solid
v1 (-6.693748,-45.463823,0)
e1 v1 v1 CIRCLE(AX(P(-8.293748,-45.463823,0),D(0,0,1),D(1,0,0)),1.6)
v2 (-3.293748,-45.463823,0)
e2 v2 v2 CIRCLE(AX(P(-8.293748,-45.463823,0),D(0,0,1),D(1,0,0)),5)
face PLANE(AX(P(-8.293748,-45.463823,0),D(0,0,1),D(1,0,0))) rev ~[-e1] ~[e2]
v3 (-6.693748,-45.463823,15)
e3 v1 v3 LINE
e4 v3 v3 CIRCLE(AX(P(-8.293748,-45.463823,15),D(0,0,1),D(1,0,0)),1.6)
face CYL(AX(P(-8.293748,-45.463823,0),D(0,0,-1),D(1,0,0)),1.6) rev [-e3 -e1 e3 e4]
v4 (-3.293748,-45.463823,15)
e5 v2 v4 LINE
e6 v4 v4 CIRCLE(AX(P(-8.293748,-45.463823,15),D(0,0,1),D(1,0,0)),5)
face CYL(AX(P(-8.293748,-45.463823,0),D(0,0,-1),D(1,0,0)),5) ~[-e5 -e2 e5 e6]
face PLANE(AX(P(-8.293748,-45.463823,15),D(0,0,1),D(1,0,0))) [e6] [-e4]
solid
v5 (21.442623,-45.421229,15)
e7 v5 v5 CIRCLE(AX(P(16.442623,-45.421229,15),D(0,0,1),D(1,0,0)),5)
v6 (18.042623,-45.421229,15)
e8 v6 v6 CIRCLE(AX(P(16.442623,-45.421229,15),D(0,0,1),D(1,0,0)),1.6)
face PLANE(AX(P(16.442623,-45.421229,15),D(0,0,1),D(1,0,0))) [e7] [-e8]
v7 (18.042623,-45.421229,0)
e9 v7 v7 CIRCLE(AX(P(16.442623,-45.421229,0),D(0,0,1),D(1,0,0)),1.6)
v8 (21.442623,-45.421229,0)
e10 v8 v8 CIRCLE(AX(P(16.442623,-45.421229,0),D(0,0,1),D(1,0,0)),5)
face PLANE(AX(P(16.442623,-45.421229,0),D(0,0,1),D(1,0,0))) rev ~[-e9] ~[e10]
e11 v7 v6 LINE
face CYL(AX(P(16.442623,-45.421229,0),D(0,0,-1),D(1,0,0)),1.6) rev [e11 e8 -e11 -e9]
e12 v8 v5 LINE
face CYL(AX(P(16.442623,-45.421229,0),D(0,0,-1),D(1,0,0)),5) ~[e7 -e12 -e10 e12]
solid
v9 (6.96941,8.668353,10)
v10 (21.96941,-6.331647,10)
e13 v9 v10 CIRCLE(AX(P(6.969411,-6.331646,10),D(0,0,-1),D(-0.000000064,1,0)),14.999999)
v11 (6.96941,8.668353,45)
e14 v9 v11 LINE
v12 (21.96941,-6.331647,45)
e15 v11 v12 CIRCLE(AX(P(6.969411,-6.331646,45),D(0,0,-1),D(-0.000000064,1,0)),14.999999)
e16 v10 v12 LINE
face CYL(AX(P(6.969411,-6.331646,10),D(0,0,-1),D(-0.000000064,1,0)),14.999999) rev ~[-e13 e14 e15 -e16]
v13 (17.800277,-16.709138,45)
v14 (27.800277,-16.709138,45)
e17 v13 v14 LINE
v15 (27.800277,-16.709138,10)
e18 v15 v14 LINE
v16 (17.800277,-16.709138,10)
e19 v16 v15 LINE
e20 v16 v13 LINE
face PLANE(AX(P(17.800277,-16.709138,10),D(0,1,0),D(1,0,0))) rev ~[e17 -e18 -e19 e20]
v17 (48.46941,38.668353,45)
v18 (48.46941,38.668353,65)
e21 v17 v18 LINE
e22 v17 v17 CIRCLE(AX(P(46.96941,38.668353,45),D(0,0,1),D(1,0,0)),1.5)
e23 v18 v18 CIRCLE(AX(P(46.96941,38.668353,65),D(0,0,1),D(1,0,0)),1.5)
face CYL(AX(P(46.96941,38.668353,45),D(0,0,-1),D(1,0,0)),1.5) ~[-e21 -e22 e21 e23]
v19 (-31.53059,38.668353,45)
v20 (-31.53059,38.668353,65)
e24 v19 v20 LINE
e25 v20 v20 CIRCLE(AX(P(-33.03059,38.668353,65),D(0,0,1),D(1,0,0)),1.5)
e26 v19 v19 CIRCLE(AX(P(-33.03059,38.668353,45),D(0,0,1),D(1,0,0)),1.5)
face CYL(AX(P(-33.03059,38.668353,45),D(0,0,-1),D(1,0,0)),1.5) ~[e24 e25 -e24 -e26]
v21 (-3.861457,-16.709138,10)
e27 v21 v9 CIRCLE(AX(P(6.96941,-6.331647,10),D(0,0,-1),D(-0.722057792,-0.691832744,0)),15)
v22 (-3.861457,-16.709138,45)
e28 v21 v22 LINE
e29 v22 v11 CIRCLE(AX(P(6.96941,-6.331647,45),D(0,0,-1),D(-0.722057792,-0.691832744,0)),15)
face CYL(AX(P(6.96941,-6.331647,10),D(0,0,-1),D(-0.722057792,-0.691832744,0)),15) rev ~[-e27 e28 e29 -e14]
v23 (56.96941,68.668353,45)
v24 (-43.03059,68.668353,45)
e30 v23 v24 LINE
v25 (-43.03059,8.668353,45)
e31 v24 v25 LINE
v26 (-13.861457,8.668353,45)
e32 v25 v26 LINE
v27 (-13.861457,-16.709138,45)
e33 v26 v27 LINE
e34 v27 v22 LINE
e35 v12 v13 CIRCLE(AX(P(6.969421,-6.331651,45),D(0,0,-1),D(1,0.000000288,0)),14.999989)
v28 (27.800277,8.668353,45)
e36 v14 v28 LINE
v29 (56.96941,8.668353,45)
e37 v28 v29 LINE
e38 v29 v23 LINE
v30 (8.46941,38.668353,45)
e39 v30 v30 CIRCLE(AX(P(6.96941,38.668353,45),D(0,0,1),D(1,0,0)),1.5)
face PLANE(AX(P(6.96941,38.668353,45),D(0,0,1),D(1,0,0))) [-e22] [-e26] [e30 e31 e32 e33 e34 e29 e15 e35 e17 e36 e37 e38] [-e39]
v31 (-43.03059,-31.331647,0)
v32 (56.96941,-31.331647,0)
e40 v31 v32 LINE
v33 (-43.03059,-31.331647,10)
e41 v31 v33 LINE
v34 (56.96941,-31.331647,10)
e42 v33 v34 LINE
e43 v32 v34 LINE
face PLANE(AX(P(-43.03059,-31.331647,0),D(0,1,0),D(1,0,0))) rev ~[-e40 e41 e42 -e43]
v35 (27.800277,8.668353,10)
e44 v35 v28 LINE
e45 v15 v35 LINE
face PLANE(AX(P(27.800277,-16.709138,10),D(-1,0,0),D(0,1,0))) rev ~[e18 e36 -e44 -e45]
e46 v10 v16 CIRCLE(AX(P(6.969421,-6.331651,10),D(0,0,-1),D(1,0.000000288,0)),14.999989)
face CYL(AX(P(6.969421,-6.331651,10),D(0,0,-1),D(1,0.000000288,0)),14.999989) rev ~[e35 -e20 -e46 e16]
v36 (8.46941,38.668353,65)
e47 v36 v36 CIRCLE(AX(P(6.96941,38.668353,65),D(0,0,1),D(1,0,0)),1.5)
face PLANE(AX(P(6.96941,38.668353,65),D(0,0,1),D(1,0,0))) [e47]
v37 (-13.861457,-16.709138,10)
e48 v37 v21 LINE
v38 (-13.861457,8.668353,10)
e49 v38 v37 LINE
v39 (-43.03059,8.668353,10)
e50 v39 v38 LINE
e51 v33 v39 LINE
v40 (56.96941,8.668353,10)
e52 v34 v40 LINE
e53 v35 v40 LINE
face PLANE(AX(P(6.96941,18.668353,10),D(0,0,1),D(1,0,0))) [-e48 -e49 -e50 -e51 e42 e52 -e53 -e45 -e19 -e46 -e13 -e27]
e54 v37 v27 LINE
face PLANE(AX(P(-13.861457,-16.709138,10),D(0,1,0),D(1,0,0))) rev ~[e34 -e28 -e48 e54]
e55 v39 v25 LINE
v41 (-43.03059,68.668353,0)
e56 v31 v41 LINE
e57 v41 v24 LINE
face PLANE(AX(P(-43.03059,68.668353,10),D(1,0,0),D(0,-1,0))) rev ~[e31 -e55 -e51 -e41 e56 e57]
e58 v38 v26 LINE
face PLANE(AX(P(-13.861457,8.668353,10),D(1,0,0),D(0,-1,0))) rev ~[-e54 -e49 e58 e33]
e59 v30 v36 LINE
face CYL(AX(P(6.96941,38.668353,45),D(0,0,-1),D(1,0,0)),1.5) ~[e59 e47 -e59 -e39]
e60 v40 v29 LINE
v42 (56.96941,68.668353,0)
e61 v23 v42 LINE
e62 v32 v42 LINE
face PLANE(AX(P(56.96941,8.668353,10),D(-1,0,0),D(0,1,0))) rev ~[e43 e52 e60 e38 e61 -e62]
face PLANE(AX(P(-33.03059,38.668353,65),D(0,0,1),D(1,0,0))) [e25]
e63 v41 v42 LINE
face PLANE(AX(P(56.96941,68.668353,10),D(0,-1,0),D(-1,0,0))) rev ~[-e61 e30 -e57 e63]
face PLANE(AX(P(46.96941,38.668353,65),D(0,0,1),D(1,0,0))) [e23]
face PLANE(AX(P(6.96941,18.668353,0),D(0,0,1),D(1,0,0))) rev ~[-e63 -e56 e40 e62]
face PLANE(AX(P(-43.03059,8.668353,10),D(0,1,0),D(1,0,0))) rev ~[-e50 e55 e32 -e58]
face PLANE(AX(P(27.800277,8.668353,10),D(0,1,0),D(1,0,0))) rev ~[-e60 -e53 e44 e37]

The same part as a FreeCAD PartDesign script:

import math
import FreeCAD as App
import Part
import Sketcher
Q = App.Units.Quantity

doc = App.newDocument("Part")
params = doc.addObject("Spreadsheet::Sheet", "Params")
for row, (alias, value) in enumerate([
    ("sketch1_width", "100 mm"),
    ("pad1_length", "10 mm"),
    ("sketch2_radius", "15 mm"),
    ("sketch2_width", "100 mm"),
    ("sketch2_width2", "10 mm"),
    ("sketch2_height", "60 mm"),
    ("pad2_length", "35 mm"),
    ("sketch3_diameter", "3 mm"),
    ("pad3_length", "20 mm"),
    ("sketch4_diameter", "10 mm"),
    ("sketch4_diameter2", "3.2 mm"),
    ("pad4_length", "15 mm"),
], start=1):
    params.set(f"A{row}", alias)
    params.set(f"B{row}", "=" + value)
    params.setAlias(f"B{row}", alias)

body = doc.addObject("PartDesign::Body", "Body")

# Sketch on XY plane
sketch1 = body.newObject("Sketcher::SketchObject", "Sketch")
sketch1.AttachmentSupport = (doc.getObject("XY_Plane"), [""])
sketch1.MapMode = "FlatFace"
sketch1.addGeometry([
    Part.LineSegment(App.Vector(-43.03059, 68.668353, 0), App.Vector(-43.03059, -31.331647, 0)),
    Part.LineSegment(App.Vector(-43.03059, -31.331647, 0), App.Vector(56.96941, -31.331647, 0)),
    Part.LineSegment(App.Vector(56.96941, -31.331647, 0), App.Vector(56.96941, 68.668353, 0)),
    Part.LineSegment(App.Vector(56.96941, 68.668353, 0), App.Vector(-43.03059, 68.668353, 0)),
], False)
sketch1.addConstraint([
    Sketcher.Constraint("Coincident", 0, 2, 1, 1),
    Sketcher.Constraint("Coincident", 1, 2, 2, 1),
    Sketcher.Constraint("Coincident", 2, 2, 3, 1),
    Sketcher.Constraint("Coincident", 3, 2, 0, 1),
    Sketcher.Constraint("Vertical", 0),
    Sketcher.Constraint("Horizontal", 1),
    Sketcher.Constraint("Vertical", 2),
    Sketcher.Constraint("Horizontal", 3),
    Sketcher.Constraint("Equal", 3, 0),
    Sketcher.Constraint("DistanceX", 1, 1, 1, 2, Q("100 mm")),
    Sketcher.Constraint("DistanceX", 0, 2, -1, 1, Q("43.03059 mm")),
    Sketcher.Constraint("DistanceY", 0, 2, -1, 1, Q("31.331647 mm")),
])
sketch1.setExpression("Constraints[9]", "Params.sketch1_width")
pad1 = body.newObject("PartDesign::Pad", "Pad")
pad1.Profile = sketch1
pad1.setExpression("Length", "Params.pad1_length")

# Sketch on XY plane
sketch2 = body.newObject("Sketcher::SketchObject", "Sketch001")
sketch2.AttachmentSupport = (doc.getObject("XY_Plane"), [""])
sketch2.MapMode = "FlatFace"
sketch2.AttachmentOffset = App.Placement(App.Vector(0, 0, 10), App.Rotation())
sketch2.addGeometry([
    Part.LineSegment(App.Vector(56.96941, 68.668353, 0), App.Vector(-43.03059, 68.668353, 0)),  # 0
    Part.LineSegment(App.Vector(-43.03059, 68.668353, 0), App.Vector(-43.03059, 8.668353, 0)),  # 1
    Part.LineSegment(App.Vector(-43.03059, 8.668353, 0), App.Vector(-13.861457, 8.668353, 0)),  # 2
    Part.LineSegment(App.Vector(-13.861457, 8.668353, 0), App.Vector(-13.861457, -16.709138, 0)),  # 3
    Part.LineSegment(App.Vector(-13.861457, -16.709138, 0), App.Vector(-3.861457, -16.709138, 0)),  # 4
    Part.ArcOfCircle(Part.Circle(App.Vector(6.96941, -6.331647, 0), App.Vector(0, 0, 1), 15), math.radians(89.999999), math.radians(223.775362)),  # 5
    Part.ArcOfCircle(Part.Circle(App.Vector(6.969411, -6.331646, 0), App.Vector(0, 0, 1), 14.999999), math.radians(-0.000004), math.radians(90.000004)),  # 6
    Part.ArcOfCircle(Part.Circle(App.Vector(6.969421, -6.331651, 0), App.Vector(0, 0, 1), 14.999989), math.radians(-43.775378), math.radians(0.000016)),  # 7
    Part.LineSegment(App.Vector(17.800277, -16.709138, 0), App.Vector(27.800277, -16.709138, 0)),  # 8
    Part.LineSegment(App.Vector(27.800277, -16.709138, 0), App.Vector(27.800277, 8.668353, 0)),  # 9
    Part.LineSegment(App.Vector(27.800277, 8.668353, 0), App.Vector(56.96941, 8.668353, 0)),  # 10
    Part.LineSegment(App.Vector(56.96941, 8.668353, 0), App.Vector(56.96941, 68.668353, 0)),  # 11
], False)
sketch2.addConstraint([
    Sketcher.Constraint("Coincident", 0, 2, 1, 1),
    Sketcher.Constraint("Coincident", 1, 2, 2, 1),
    Sketcher.Constraint("Coincident", 2, 2, 3, 1),
    Sketcher.Constraint("Coincident", 3, 2, 4, 1),
    Sketcher.Constraint("Coincident", 4, 2, 5, 2),
    Sketcher.Constraint("Tangent", 5, 1, 6, 2),
    Sketcher.Constraint("Tangent", 6, 1, 7, 2),
    Sketcher.Constraint("Coincident", 7, 1, 8, 1),
    Sketcher.Constraint("Coincident", 8, 2, 9, 1),
    Sketcher.Constraint("Coincident", 9, 2, 10, 1),
    Sketcher.Constraint("Coincident", 10, 2, 11, 1),
    Sketcher.Constraint("Coincident", 11, 2, 0, 1),
    Sketcher.Constraint("Horizontal", 0),
    Sketcher.Constraint("Vertical", 1),
    Sketcher.Constraint("Horizontal", 2),
    Sketcher.Constraint("Vertical", 3),
    Sketcher.Constraint("Horizontal", 4),
    Sketcher.Constraint("Horizontal", 8),
    Sketcher.Constraint("Vertical", 9),
    Sketcher.Constraint("Horizontal", 10),
    Sketcher.Constraint("Vertical", 11),
    Sketcher.Constraint("Equal", 5, 6),
    Sketcher.Constraint("Horizontal", 2, 2, 5, 1),
    Sketcher.Constraint("Horizontal", 5, 3, 6, 1),
    Sketcher.Constraint("Horizontal", 4, 2, 7, 1),
    Sketcher.Constraint("Horizontal", 5, 1, 9, 2),
    Sketcher.Constraint("Vertical", 6, 3, 5, 1),
    Sketcher.Constraint("Equal", 4, 8),
    Sketcher.Constraint("Equal", 2, 10),
    Sketcher.Constraint("Radius", 5, Q("15 mm")),
    Sketcher.Constraint("DistanceX", 0, 2, 0, 1, Q("100 mm")),
    Sketcher.Constraint("DistanceX", 4, 1, 4, 2, Q("10 mm")),
    Sketcher.Constraint("DistanceY", 1, 2, 1, 1, Q("60 mm")),
    Sketcher.Constraint("DistanceX", 0, 2, 6, 3, Q("50.000001 mm")),
    Sketcher.Constraint("DistanceY", 3, 2, 3, 1, Q("25.377491 mm")),
    Sketcher.Constraint("DistanceX", -1, 1, 5, 3, Q("6.96941 mm")),
    Sketcher.Constraint("DistanceY", 7, 3, -1, 1, Q("6.331651 mm")),
])
sketch2.setExpression("Constraints[29]", "Params.sketch2_radius")
sketch2.setExpression("Constraints[30]", "Params.sketch2_width")
sketch2.setExpression("Constraints[31]", "Params.sketch2_width2")
sketch2.setExpression("Constraints[32]", "Params.sketch2_height")
pad2 = body.newObject("PartDesign::Pad", "Pad001")
pad2.Profile = sketch2
pad2.setExpression("Length", "Params.pad2_length")

# Sketch on XY plane
sketch3 = body.newObject("Sketcher::SketchObject", "Sketch002")
sketch3.AttachmentSupport = (doc.getObject("XY_Plane"), [""])
sketch3.MapMode = "FlatFace"
sketch3.AttachmentOffset = App.Placement(App.Vector(0, 0, 45), App.Rotation())
sketch3.addGeometry([
    Part.Circle(App.Vector(-33.03059, 38.668353, 0), App.Vector(0, 0, 1), 1.5),
    Part.Circle(App.Vector(6.96941, 38.668353, 0), App.Vector(0, 0, 1), 1.5),
    Part.Circle(App.Vector(46.96941, 38.668353, 0), App.Vector(0, 0, 1), 1.5),
], False)
sketch3.addConstraint([
    Sketcher.Constraint("Equal", 0, 1),
    Sketcher.Constraint("Equal", 1, 2),
    Sketcher.Constraint("Horizontal", 0, 3, 1, 3),
    Sketcher.Constraint("Horizontal", 1, 3, 2, 3),
    Sketcher.Constraint("Diameter", 0, Q("3 mm")),
    Sketcher.Constraint("DistanceX", 0, 3, 1, 3, Q("40 mm")),
    Sketcher.Constraint("DistanceX", 1, 3, 2, 3, Q("40 mm")),
    Sketcher.Constraint("DistanceX", 0, 3, -1, 1, Q("33.03059 mm")),
    Sketcher.Constraint("DistanceY", -1, 1, 0, 3, Q("38.668353 mm")),
])
sketch3.setExpression("Constraints[4]", "Params.sketch3_diameter")
pad3 = body.newObject("PartDesign::Pad", "Pad002")
pad3.Profile = sketch3
pad3.setExpression("Length", "Params.pad3_length")
body2 = doc.addObject("PartDesign::Body", "Body001")
body2.AllowCompound = True

# Sketch on XY plane
sketch4 = body2.newObject("Sketcher::SketchObject", "Sketch003")
sketch4.AttachmentSupport = (doc.getObject("XY_Plane001"), [""])
sketch4.MapMode = "FlatFace"
sketch4.addGeometry([
    Part.Circle(App.Vector(-8.293748, -45.463823, 0), App.Vector(0, 0, 1), 5),
    Part.Circle(App.Vector(-8.293748, -45.463823, 0), App.Vector(0, 0, 1), 1.6),
    Part.Circle(App.Vector(16.442623, -45.421229, 0), App.Vector(0, 0, 1), 5),
    Part.Circle(App.Vector(16.442623, -45.421229, 0), App.Vector(0, 0, 1), 1.6),
], False)
sketch4.addConstraint([
    Sketcher.Constraint("Coincident", 1, 3, 0, 3),
    Sketcher.Constraint("Coincident", 3, 3, 2, 3),
    Sketcher.Constraint("Equal", 0, 2),
    Sketcher.Constraint("Equal", 1, 3),
    Sketcher.Constraint("Diameter", 0, Q("10 mm")),
    Sketcher.Constraint("Diameter", 1, Q("3.2 mm")),
    Sketcher.Constraint("DistanceX", 0, 3, -1, 1, Q("8.293748 mm")),
    Sketcher.Constraint("DistanceY", 2, 3, -1, 1, Q("45.421229 mm")),
    Sketcher.Constraint("DistanceX", 0, 3, 2, 3, Q("24.736371 mm")),
    Sketcher.Constraint("DistanceY", 0, 3, -1, 1, Q("45.463823 mm")),
])
sketch4.setExpression("Constraints[4]", "Params.sketch4_diameter")
sketch4.setExpression("Constraints[5]", "Params.sketch4_diameter2")
pad4 = body2.newObject("PartDesign::Pad", "Pad003")
pad4.Profile = sketch4
pad4.setExpression("Length", "Params.pad4_length")

doc.recompute()
